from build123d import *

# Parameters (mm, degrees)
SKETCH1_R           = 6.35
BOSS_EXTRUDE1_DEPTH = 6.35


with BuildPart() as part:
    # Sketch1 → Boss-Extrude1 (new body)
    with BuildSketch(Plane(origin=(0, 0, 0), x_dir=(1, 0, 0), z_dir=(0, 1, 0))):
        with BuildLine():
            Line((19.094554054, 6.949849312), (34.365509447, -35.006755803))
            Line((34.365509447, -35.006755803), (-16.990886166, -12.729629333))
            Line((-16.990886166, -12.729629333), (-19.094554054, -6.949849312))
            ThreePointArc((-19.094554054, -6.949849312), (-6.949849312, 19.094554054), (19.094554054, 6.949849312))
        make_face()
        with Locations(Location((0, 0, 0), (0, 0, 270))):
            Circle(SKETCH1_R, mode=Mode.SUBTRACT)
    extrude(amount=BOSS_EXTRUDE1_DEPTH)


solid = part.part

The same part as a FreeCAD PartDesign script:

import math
import FreeCAD as App
import Part
import Sketcher
Q = App.Units.Quantity

doc = App.newDocument("Part")
body = doc.addObject("PartDesign::Body", "Body")

# Sketch on XZ plane
sketch1 = body.newObject("Sketcher::SketchObject", "Sketch")
sketch1.AttachmentSupport = (doc.getObject("XZ_Plane"), [""])
sketch1.MapMode = "FlatFace"
sketch1.addGeometry(Part.LineSegment(App.Vector(34, 35, 0), App.Vector(19, -7, 0)), False)
sketch1.addGeometry(Part.ArcOfCircle(Part.Circle(App.Vector(0, 0, 0), App.Vector(0, 0, 1), 20), math.radians(160), math.radians(340)), False)
sketch1.addGeometry(Part.LineSegment(App.Vector(-19, 7, 0), App.Vector(-17, 13, 0)), False)
sketch1.addGeometry(Part.LineSegment(App.Vector(-17, 13, 0), App.Vector(34, 35, 0)), False)
sketch1.addGeometry(Part.Circle(App.Vector(0, 0, 0), App.Vector(0, 0, 1), 6), False)
sketch1.addConstraint(Sketcher.Constraint("Tangent", 0, 2, 1, 2))
sketch1.addConstraint(Sketcher.Constraint("Tangent", 1, 1, 2, 1))
sketch1.addConstraint(Sketcher.Constraint("Coincident", 2, 2, 3, 1))
sketch1.addConstraint(Sketcher.Constraint("Coincident", 3, 2, 0, 1))
sketch1.addConstraint(Sketcher.Constraint("Coincident", 1, 3, -1, 1))
sketch1.addConstraint(Sketcher.Constraint("Coincident", 4, 3, -1, 1))
sketch1.addConstraint(Sketcher.Constraint("Parallel", 0, 2))
sketch1.addConstraint(Sketcher.Constraint("Diameter", 4, Q("0.5 in")))
sketch1.addConstraint(Sketcher.Constraint("Radius", 1, Q("0.8 in")))
sketch1.addConstraint(Sketcher.Constraint("Angle", 0, Q("-110 deg")))
sketch1.addConstraint(Sketcher.Constraint("Angle", 3, Q("23.45 deg")))
sketch1.addConstraint(Sketcher.Constraint("DistanceY", -1, 1, 2, 2, Q("12.729629 mm")))
pad1 = body.newObject("PartDesign::Pad", "Pad")
pad1.Profile = sketch1
pad1.Length = Q("0.25 in")
pad1.Reversed = True

doc.recompute()
